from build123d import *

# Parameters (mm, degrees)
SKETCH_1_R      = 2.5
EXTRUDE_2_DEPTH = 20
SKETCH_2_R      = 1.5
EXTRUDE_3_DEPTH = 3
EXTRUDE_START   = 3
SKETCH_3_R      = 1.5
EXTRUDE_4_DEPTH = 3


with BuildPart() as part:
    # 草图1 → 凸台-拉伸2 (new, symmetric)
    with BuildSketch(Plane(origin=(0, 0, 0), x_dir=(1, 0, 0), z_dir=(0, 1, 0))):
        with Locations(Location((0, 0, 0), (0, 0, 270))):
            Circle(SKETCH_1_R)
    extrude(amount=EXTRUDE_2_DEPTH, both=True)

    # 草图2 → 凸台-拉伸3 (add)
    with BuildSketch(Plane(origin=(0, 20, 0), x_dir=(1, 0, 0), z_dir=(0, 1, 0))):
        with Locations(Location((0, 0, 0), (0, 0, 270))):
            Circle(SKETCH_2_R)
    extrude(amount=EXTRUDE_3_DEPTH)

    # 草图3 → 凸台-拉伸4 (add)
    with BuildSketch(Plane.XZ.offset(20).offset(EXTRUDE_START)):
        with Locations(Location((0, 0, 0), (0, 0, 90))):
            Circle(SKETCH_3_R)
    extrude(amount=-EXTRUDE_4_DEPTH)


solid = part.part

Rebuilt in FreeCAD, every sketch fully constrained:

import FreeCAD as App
import Part
import Sketcher
Q = App.Units.Quantity

doc = App.newDocument("Part")
body = doc.addObject("PartDesign::Body", "Body")

sketch1 = body.newObject("Sketcher::SketchObject", "Sketch")
sketch1.AttachmentSupport = (doc.getObject("XZ_Plane"), [""])
sketch1.MapMode = "FlatFace"
sketch1.addGeometry(Part.Circle(App.Vector(0, 0, 0), App.Vector(0, 0, 1), 2.5), False)
sketch1.addConstraint([
    Sketcher.Constraint("Coincident", 0, 3, -1, 1),
    Sketcher.Constraint("Diameter", 0, Q("5 mm")),
])
pad1 = body.newObject("PartDesign::Pad", "Pad")
pad1.Profile = sketch1
pad1.Length = 40
pad1.Midplane = True

sketch2 = body.newObject("Sketcher::SketchObject", "Sketch001")
sketch2.AttachmentSupport = (doc.getObject("XZ_Plane"), [""])
sketch2.MapMode = "FlatFace"
sketch2.AttachmentOffset = App.Placement(App.Vector(0, 0, -20), App.Rotation())
sketch2.addGeometry(Part.Circle(App.Vector(0, 0, 0), App.Vector(0, 0, 1), 1.5), False)
sketch2.addConstraint([
    Sketcher.Constraint("Coincident", 0, 3, -1, 1),
    Sketcher.Constraint("Diameter", 0, Q("3 mm")),
])
pad2 = body.newObject("PartDesign::Pad", "Pad001")
pad2.Profile = sketch2
pad2.Length = 3
pad2.Reversed = True

sketch3 = body.newObject("Sketcher::SketchObject", "Sketch002")
sketch3.AttachmentSupport = (doc.getObject("XZ_Plane"), [""])
sketch3.MapMode = "FlatFace"
sketch3.AttachmentOffset = App.Placement(App.Vector(0, 0, 23), App.Rotation())
sketch3.addGeometry(Part.Circle(App.Vector(0, 0, 0), App.Vector(0, 0, 1), 1.5), False)
sketch3.addConstraint([
    Sketcher.Constraint("Coincident", 0, 3, -1, 1),
    Sketcher.Constraint("Diameter", 0, Q("3 mm")),
])
pad3 = body.newObject("PartDesign::Pad", "Pad002")
pad3.Profile = sketch3
pad3.Length = 3
pad3.Reversed = True

doc.recompute()
